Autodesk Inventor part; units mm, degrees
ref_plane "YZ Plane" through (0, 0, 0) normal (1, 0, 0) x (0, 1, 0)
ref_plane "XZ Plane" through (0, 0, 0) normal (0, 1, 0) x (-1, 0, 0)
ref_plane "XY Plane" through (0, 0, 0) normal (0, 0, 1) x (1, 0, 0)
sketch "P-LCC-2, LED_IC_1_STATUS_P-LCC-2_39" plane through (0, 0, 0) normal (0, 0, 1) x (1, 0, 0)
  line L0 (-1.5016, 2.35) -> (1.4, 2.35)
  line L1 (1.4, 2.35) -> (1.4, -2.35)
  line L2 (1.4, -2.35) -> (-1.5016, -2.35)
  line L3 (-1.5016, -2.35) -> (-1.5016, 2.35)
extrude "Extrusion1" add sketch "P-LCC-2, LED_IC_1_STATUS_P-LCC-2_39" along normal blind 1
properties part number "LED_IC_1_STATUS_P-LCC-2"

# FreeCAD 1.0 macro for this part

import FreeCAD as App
import Part
import Sketcher

V = App.Vector
Q = App.Units.Quantity

doc = App.newDocument("Part")
body = doc.addObject("PartDesign::Body", "Body")

# Sketch on XY plane
sketch1 = doc.addObject("Sketcher::SketchObject", "Sketch")
body.addObject(sketch1)
sketch1.AttachmentSupport = (doc.XY_Plane, [""])
sketch1.MapMode = "FlatFace"
sketch1.addGeometry(Part.LineSegment(V(1.4, 2.4, 0), V(-1.5, 2.4, 0)), False)
sketch1.addGeometry(Part.LineSegment(V(-1.5, 2.4, 0), V(-1.5, -2.4, 0)), False)
sketch1.addGeometry(Part.LineSegment(V(-1.5, -2.4, 0), V(1.4, -2.4, 0)), False)
sketch1.addGeometry(Part.LineSegment(V(1.4, -2.4, 0), V(1.4, 2.4, 0)), False)
sketch1.addConstraint(Sketcher.Constraint("Coincident", 0, 2, 1, 1))
sketch1.addConstraint(Sketcher.Constraint("Coincident", 1, 2, 2, 1))
sketch1.addConstraint(Sketcher.Constraint("Coincident", 2, 2, 3, 1))
sketch1.addConstraint(Sketcher.Constraint("Coincident", 3, 2, 0, 1))
sketch1.addConstraint(Sketcher.Constraint("Horizontal", 0))
sketch1.addConstraint(Sketcher.Constraint("Vertical", 1))
sketch1.addConstraint(Sketcher.Constraint("Horizontal", 2))
sketch1.addConstraint(Sketcher.Constraint("Vertical", 3))
sketch1.addConstraint(Sketcher.Constraint("DistanceY", 1, 2, 1, 1, Q("4.7 mm")))
sketch1.addConstraint(Sketcher.Constraint("DistanceX", -1, 1, 2, 2, Q("1.4 mm")))
sketch1.addConstraint(Sketcher.Constraint("DistanceY", -1, 1, 0, 2, Q("2.35 mm")))
sketch1.addConstraint(Sketcher.Constraint("DistanceX", 0, 2, 0, 1, Q("2.9016 mm")))
pad1 = doc.addObject("PartDesign::Pad", "Pad")
body.addObject(pad1)
pad1.Profile = sketch1
pad1.Length = 1

doc.recompute()
